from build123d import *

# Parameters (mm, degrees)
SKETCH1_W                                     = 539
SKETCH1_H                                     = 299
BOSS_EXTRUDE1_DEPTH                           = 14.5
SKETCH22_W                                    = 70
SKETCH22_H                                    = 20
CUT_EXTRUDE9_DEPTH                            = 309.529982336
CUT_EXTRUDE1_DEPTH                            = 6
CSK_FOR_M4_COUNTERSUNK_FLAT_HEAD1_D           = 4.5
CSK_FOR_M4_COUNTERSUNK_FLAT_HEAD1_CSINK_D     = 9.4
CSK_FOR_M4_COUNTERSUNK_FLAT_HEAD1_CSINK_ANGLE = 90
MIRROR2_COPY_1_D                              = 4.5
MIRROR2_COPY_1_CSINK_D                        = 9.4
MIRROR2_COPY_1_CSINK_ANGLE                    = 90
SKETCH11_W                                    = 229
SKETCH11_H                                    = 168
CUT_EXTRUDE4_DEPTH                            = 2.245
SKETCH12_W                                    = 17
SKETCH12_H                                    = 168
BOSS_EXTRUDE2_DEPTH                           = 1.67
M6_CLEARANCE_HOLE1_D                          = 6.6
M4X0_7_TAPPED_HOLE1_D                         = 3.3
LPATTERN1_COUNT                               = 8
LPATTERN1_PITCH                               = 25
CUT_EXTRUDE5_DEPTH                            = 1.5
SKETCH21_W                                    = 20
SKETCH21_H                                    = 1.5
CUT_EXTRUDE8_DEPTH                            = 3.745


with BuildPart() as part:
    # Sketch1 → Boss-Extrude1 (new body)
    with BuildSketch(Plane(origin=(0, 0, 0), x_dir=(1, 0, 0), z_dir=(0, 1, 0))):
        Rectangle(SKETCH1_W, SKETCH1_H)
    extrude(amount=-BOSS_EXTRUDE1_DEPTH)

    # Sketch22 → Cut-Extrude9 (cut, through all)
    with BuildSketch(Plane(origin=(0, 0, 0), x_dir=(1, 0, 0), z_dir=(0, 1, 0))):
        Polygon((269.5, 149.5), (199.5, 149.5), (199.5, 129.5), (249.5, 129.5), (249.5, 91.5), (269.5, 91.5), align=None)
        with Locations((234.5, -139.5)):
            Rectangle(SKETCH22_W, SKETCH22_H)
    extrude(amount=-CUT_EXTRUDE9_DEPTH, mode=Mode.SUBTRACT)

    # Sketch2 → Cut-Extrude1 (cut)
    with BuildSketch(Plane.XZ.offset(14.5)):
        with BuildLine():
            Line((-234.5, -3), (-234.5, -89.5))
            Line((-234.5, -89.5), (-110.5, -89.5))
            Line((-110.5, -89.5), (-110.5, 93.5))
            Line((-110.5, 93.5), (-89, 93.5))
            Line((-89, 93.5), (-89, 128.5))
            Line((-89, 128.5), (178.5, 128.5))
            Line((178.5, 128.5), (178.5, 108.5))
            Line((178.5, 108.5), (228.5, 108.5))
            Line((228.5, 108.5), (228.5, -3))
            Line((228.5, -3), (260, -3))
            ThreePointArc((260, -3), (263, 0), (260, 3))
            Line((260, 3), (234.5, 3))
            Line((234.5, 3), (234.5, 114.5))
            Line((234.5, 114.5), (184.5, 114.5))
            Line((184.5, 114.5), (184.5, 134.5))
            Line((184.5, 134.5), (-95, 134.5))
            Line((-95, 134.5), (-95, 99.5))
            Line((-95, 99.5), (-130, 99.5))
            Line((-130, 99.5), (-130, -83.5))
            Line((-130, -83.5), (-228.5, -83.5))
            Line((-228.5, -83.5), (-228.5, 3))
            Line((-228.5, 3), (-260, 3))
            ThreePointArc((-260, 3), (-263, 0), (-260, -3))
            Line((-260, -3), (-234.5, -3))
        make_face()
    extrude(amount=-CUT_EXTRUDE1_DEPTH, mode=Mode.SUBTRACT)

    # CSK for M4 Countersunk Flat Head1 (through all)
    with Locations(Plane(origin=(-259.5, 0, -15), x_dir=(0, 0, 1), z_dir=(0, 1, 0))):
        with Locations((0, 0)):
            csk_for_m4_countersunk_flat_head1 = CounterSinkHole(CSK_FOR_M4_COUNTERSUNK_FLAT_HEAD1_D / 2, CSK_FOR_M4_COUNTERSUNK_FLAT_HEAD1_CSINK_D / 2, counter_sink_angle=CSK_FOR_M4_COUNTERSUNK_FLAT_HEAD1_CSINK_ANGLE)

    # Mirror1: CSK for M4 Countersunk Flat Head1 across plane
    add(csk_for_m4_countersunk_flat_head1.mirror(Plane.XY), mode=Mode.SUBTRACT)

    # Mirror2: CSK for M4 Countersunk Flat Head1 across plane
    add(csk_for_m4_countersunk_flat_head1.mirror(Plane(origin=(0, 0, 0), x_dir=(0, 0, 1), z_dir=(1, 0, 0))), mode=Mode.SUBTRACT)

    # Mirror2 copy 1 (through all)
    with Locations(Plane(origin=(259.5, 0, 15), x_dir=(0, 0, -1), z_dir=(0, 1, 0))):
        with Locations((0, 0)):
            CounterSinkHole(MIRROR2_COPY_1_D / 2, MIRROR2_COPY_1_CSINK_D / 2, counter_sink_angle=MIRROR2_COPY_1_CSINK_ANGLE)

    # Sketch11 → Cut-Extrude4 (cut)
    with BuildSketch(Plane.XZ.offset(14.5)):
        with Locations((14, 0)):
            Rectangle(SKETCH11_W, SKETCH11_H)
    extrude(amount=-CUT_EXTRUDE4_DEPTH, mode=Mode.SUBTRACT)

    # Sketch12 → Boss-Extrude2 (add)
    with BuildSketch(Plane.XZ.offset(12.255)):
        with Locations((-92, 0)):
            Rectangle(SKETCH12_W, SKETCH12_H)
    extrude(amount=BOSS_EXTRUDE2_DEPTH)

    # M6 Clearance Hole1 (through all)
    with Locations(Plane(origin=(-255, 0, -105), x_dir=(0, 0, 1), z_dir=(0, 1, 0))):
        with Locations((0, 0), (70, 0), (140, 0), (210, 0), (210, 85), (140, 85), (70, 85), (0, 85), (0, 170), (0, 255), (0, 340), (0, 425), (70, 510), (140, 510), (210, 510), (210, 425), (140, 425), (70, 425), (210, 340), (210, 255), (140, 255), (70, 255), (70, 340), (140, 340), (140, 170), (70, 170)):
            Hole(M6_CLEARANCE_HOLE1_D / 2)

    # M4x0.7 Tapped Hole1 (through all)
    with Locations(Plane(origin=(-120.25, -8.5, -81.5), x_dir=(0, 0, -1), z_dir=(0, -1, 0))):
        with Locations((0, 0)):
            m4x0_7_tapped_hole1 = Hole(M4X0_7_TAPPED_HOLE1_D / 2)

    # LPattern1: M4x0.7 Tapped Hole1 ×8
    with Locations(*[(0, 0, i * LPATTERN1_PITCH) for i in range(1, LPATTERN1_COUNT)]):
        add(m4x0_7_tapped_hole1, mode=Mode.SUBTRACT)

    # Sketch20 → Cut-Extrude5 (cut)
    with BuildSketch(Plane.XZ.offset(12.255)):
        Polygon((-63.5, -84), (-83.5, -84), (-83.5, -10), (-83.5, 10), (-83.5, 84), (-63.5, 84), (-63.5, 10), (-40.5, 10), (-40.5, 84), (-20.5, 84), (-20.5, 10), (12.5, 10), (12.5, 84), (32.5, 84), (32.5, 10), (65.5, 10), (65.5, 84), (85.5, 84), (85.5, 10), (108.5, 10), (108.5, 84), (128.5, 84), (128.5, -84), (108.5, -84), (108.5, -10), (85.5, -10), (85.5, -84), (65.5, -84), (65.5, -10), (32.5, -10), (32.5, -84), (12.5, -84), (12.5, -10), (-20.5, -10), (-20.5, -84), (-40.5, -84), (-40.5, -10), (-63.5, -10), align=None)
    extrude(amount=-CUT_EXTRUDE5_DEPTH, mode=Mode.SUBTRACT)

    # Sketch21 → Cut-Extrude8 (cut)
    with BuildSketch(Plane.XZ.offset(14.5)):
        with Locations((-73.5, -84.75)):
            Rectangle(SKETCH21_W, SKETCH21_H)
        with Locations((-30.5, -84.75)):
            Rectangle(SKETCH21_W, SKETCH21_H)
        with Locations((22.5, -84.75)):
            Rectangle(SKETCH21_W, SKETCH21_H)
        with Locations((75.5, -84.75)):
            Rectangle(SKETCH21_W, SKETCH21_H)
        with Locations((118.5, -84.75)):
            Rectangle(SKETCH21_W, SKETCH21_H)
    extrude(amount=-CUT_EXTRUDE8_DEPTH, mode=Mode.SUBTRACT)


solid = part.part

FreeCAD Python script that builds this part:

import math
import FreeCAD as App
import Part
import Sketcher


def add_polygon(sketch, points):
    """Adds a closed chain of lines whose ends are joined by coincident constraints."""
    first, n = sketch.GeometryCount, len(points)
    for a, b in zip(points, points[1:] + points[:1]):
        sketch.addGeometry(Part.LineSegment(App.Vector(*a, 0), App.Vector(*b, 0)), False)
    for i in range(n):
        sketch.addConstraint(Sketcher.Constraint("Coincident", first + i, 2, first + (i + 1) % n, 1))

doc = App.newDocument("Part")
body = doc.addObject("PartDesign::Body", "Body")

# Sketch on XZ plane
sketch1 = doc.addObject("Sketcher::SketchObject", "Sketch")
body.addObject(sketch1)
sketch1.AttachmentSupport = (doc.XZ_Plane, [""])
sketch1.MapMode = "FlatFace"
add_polygon(sketch1, [(-269.5, -149.5), (-269.5, 149.5), (269.5, 149.5), (269.5, -149.5)])  # lines 0-3
sketch1.addConstraint(Sketcher.Constraint("Vertical", 0))
sketch1.addConstraint(Sketcher.Constraint("Horizontal", 1))
sketch1.addConstraint(Sketcher.Constraint("Vertical", 2))
sketch1.addConstraint(Sketcher.Constraint("Horizontal", 3))
sketch1.addConstraint(Sketcher.Constraint("Symmetric", 0, 2, 2, 2, -1, 1))
sketch1.addConstraint(Sketcher.Constraint("DistanceX", 1, 1, 1, 2, 539.0))
sketch1.addConstraint(Sketcher.Constraint("DistanceY", 0, 1, 0, 2, 299.0))
pad1 = doc.addObject("PartDesign::Pad", "Pad")
body.addObject(pad1)
pad1.Profile = sketch1
pad1.Length = 14.5

# Sketch on XZ plane
sketch2 = doc.addObject("Sketcher::SketchObject", "Sketch001")
body.addObject(sketch2)
sketch2.AttachmentSupport = (doc.XZ_Plane, [""])
sketch2.MapMode = "FlatFace"
add_polygon(sketch2, [(269.5, -149.5), (199.5, -149.5), (199.5, -129.5), (249.5, -129.5), (249.5, -91.5), (269.5, -91.5)])  # lines 0-5
add_polygon(sketch2, [(199.5, 129.5), (199.5, 149.5), (269.5, 149.5), (269.5, 129.5)])  # lines 6-9
sketch2.addConstraint(Sketcher.Constraint("Horizontal", 0))
sketch2.addConstraint(Sketcher.Constraint("Vertical", 1))
sketch2.addConstraint(Sketcher.Constraint("Horizontal", 2))
sketch2.addConstraint(Sketcher.Constraint("Vertical", 3))
sketch2.addConstraint(Sketcher.Constraint("Horizontal", 4))
sketch2.addConstraint(Sketcher.Constraint("Vertical", 5))
sketch2.addConstraint(Sketcher.Constraint("Vertical", 6))
sketch2.addConstraint(Sketcher.Constraint("Horizontal", 7))
sketch2.addConstraint(Sketcher.Constraint("Vertical", 8))
sketch2.addConstraint(Sketcher.Constraint("Horizontal", 9))
sketch2.addConstraint(Sketcher.Constraint("Symmetric", 0, 2, 6, 2, -1))
sketch2.addConstraint(Sketcher.Constraint("Vertical", 5, 2, 7, 2))
sketch2.addConstraint(Sketcher.Constraint("Equal", 4, 1))
sketch2.addConstraint(Sketcher.Constraint("Equal", 1, 6))
sketch2.addConstraint(Sketcher.Constraint("DistanceX", 0, 2, 0, 1, 70.0))
sketch2.addConstraint(Sketcher.Constraint("DistanceX", 2, 1, 2, 2, 50.0))
sketch2.addConstraint(Sketcher.Constraint("DistanceY", 3, 1, 3, 2, 38.0))
sketch2.addConstraint(Sketcher.Constraint("DistanceY", 3, 2, 6, 2, 241.0))
sketch2.addConstraint(Sketcher.Constraint("DistanceX", -1, 1, 0, 2, 199.5))
pocket1 = doc.addObject("PartDesign::Pocket", "Pocket")
body.addObject(pocket1)
pocket1.Profile = sketch2
pocket1.Type = "ThroughAll"
pocket1.Reversed = True

# Sketch on XZ plane
sketch3 = doc.addObject("Sketcher::SketchObject", "Sketch002")
body.addObject(sketch3)
sketch3.AttachmentSupport = (doc.XZ_Plane, [""])
sketch3.MapMode = "FlatFace"
sketch3.AttachmentOffset = App.Placement(App.Vector(0, 0, 14.5), App.Rotation())
sketch3.addGeometry(Part.LineSegment(App.Vector(-234.5, -3, 0), App.Vector(-234.5, -89.5, 0)), False)
sketch3.addGeometry(Part.LineSegment(App.Vector(-234.5, -89.5, 0), App.Vector(-110.5, -89.5, 0)), False)
sketch3.addGeometry(Part.LineSegment(App.Vector(-110.5, -89.5, 0), App.Vector(-110.5, 93.5, 0)), False)
sketch3.addGeometry(Part.LineSegment(App.Vector(-110.5, 93.5, 0), App.Vector(-89, 93.5, 0)), False)
sketch3.addGeometry(Part.LineSegment(App.Vector(-89, 93.5, 0), App.Vector(-89, 128.5, 0)), False)
sketch3.addGeometry(Part.LineSegment(App.Vector(-89, 128.5, 0), App.Vector(178.5, 128.5, 0)), False)
sketch3.addGeometry(Part.LineSegment(App.Vector(178.5, 128.5, 0), App.Vector(178.5, 108.5, 0)), False)
sketch3.addGeometry(Part.LineSegment(App.Vector(178.5, 108.5, 0), App.Vector(228.5, 108.5, 0)), False)
sketch3.addGeometry(Part.LineSegment(App.Vector(228.5, 108.5, 0), App.Vector(228.5, -3, 0)), False)
sketch3.addGeometry(Part.LineSegment(App.Vector(228.5, -3, 0), App.Vector(260, -3, 0)), False)
sketch3.addGeometry(Part.ArcOfCircle(Part.Circle(App.Vector(260, 0, 0), App.Vector(0, 0, 1), 3), math.radians(-90), math.radians(90)), False)
sketch3.addGeometry(Part.LineSegment(App.Vector(260, 3, 0), App.Vector(234.5, 3, 0)), False)
sketch3.addGeometry(Part.LineSegment(App.Vector(234.5, 3, 0), App.Vector(234.5, 114.5, 0)), False)
sketch3.addGeometry(Part.LineSegment(App.Vector(234.5, 114.5, 0), App.Vector(184.5, 114.5, 0)), False)
sketch3.addGeometry(Part.LineSegment(App.Vector(184.5, 114.5, 0), App.Vector(184.5, 134.5, 0)), False)
sketch3.addGeometry(Part.LineSegment(App.Vector(184.5, 134.5, 0), App.Vector(-95, 134.5, 0)), False)
sketch3.addGeometry(Part.LineSegment(App.Vector(-95, 134.5, 0), App.Vector(-95, 99.5, 0)), False)
sketch3.addGeometry(Part.LineSegment(App.Vector(-95, 99.5, 0), App.Vector(-130, 99.5, 0)), False)
sketch3.addGeometry(Part.LineSegment(App.Vector(-130, 99.5, 0), App.Vector(-130, -83.5, 0)), False)
sketch3.addGeometry(Part.LineSegment(App.Vector(-130, -83.5, 0), App.Vector(-228.5, -83.5, 0)), False)
sketch3.addGeometry(Part.LineSegment(App.Vector(-228.5, -83.5, 0), App.Vector(-228.5, 3, 0)), False)
sketch3.addGeometry(Part.LineSegment(App.Vector(-228.5, 3, 0), App.Vector(-260, 3, 0)), False)
sketch3.addGeometry(Part.ArcOfCircle(Part.Circle(App.Vector(-260, 0, 0), App.Vector(0, 0, 1), 3), math.radians(90), math.radians(270)), False)
sketch3.addGeometry(Part.LineSegment(App.Vector(-260, -3, 0), App.Vector(-234.5, -3, 0)), False)
sketch3.addConstraint(Sketcher.Constraint("Coincident", 0, 2, 1, 1))
sketch3.addConstraint(Sketcher.Constraint("Coincident", 1, 2, 2, 1))
sketch3.addConstraint(Sketcher.Constraint("Coincident", 2, 2, 3, 1))
sketch3.addConstraint(Sketcher.Constraint("Coincident", 3, 2, 4, 1))
sketch3.addConstraint(Sketcher.Constraint("Coincident", 4, 2, 5, 1))
sketch3.addConstraint(Sketcher.Constraint("Coincident", 5, 2, 6, 1))
sketch3.addConstraint(Sketcher.Constraint("Coincident", 6, 2, 7, 1))
sketch3.addConstraint(Sketcher.Constraint("Coincident", 7, 2, 8, 1))
sketch3.addConstraint(Sketcher.Constraint("Coincident", 8, 2, 9, 1))
sketch3.addConstraint(Sketcher.Constraint("Tangent", 9, 2, 10, 1))
sketch3.addConstraint(Sketcher.Constraint("Tangent", 10, 2, 11, 1))
sketch3.addConstraint(Sketcher.Constraint("Coincident", 11, 2, 12, 1))
sketch3.addConstraint(Sketcher.Constraint("Coincident", 12, 2, 13, 1))
sketch3.addConstraint(Sketcher.Constraint("Coincident", 13, 2, 14, 1))
sketch3.addConstraint(Sketcher.Constraint("Coincident", 14, 2, 15, 1))
sketch3.addConstraint(Sketcher.Constraint("Coincident", 15, 2, 16, 1))
sketch3.addConstraint(Sketcher.Constraint("Coincident", 16, 2, 17, 1))
sketch3.addConstraint(Sketcher.Constraint("Coincident", 17, 2, 18, 1))
sketch3.addConstraint(Sketcher.Constraint("Coincident", 18, 2, 19, 1))
sketch3.addConstraint(Sketcher.Constraint("Coincident", 19, 2, 20, 1))
sketch3.addConstraint(Sketcher.Constraint("Coincident", 20, 2, 21, 1))
sketch3.addConstraint(Sketcher.Constraint("Tangent", 21, 2, 22, 1))
sketch3.addConstraint(Sketcher.Constraint("Tangent", 22, 2, 23, 1))
sketch3.addConstraint(Sketcher.Constraint("Coincident", 23, 2, 0, 1))
sketch3.addConstraint(Sketcher.Constraint("Vertical", 0))
sketch3.addConstraint(Sketcher.Constraint("Horizontal", 1))
sketch3.addConstraint(Sketcher.Constraint("Vertical", 2))
sketch3.addConstraint(Sketcher.Constraint("Horizontal", 3))
sketch3.addConstraint(Sketcher.Constraint("Vertical", 4))
sketch3.addConstraint(Sketcher.Constraint("Horizontal", 5))
sketch3.addConstraint(Sketcher.Constraint("Vertical", 6))
sketch3.addConstraint(Sketcher.Constraint("Horizontal", 7))
sketch3.addConstraint(Sketcher.Constraint("Vertical", 8))
sketch3.addConstraint(Sketcher.Constraint("Horizontal", 9))
sketch3.addConstraint(Sketcher.Constraint("Horizontal", 11))
sketch3.addConstraint(Sketcher.Constraint("Vertical", 12))
sketch3.addConstraint(Sketcher.Constraint("Horizontal", 13))
sketch3.addConstraint(Sketcher.Constraint("Vertical", 14))
sketch3.addConstraint(Sketcher.Constraint("Horizontal", 15))
sketch3.addConstraint(Sketcher.Constraint("Vertical", 16))
sketch3.addConstraint(Sketcher.Constraint("Horizontal", 17))
sketch3.addConstraint(Sketcher.Constraint("Vertical", 18))
sketch3.addConstraint(Sketcher.Constraint("Horizontal", 19))
sketch3.addConstraint(Sketcher.Constraint("Vertical", 20))
sketch3.addConstraint(Sketcher.Constraint("Horizontal", 21))
sketch3.addConstraint(Sketcher.Constraint("Horizontal", 23))
sketch3.addConstraint(Sketcher.Constraint("Equal", 10, 22))
sketch3.addConstraint(Sketcher.Constraint("Symmetric", 10, 3, 22, 3, -1, 1))
sketch3.addConstraint(Sketcher.Constraint("PointOnObject", 10, 3, -1))
sketch3.addConstraint(Sketcher.Constraint("Equal", 7, 13))
sketch3.addConstraint(Sketcher.Constraint("Equal", 9, 21))
sketch3.addConstraint(Sketcher.Constraint("Equal", 11, 23))
sketch3.addConstraint(Sketcher.Constraint("Equal", 17, 4))
sketch3.addConstraint(Sketcher.Constraint("Equal", 8, 12))
sketch3.addConstraint(Sketcher.Constraint("Equal", 6, 14))
sketch3.addConstraint(Sketcher.Constraint("Equal", 4, 16))
sketch3.addConstraint(Sketcher.Constraint("Equal", 2, 18))
sketch3.addConstraint(Sketcher.Constraint("Radius", 10, 3.0))
sketch3.addConstraint(Sketcher.Constraint("DistanceX", 1, 1, 1, 2, 124.0))
sketch3.addConstraint(Sketcher.Constraint("DistanceX", 7, 1, 7, 2, 50.0))
sketch3.addConstraint(Sketcher.Constraint("DistanceX", 17, 2, 17, 1, 35.0))
sketch3.addConstraint(Sketcher.Constraint("DistanceY", 2, 1, 2, 2, 183.0))
sketch3.addConstraint(Sketcher.Constraint("DistanceY", 6, 2, 6, 1, 20.0))
sketch3.addConstraint(Sketcher.Constraint("DistanceX", 3, 1, 3, 2, 21.5))
sketch3.addConstraint(Sketcher.Constraint("DistanceX", 5, 1, 5, 2, 267.5))
sketch3.addConstraint(Sketcher.Constraint("DistanceX", 9, 1, 9, 2, 31.5))
sketch3.addConstraint(Sketcher.Constraint("DistanceX", 11, 2, 11, 1, 25.5))
sketch3.addConstraint(Sketcher.Constraint("DistanceX", 15, 2, 15, 1, 279.5))
sketch3.addConstraint(Sketcher.Constraint("DistanceY", 0, 2, 0, 1, 86.5))
pocket2 = doc.addObject("PartDesign::Pocket", "Pocket001")
body.addObject(pocket2)
pocket2.Profile = sketch3
pocket2.Length = 6

# Sketch on XZ plane
sketch4 = doc.addObject("Sketcher::SketchObject", "Sketch003")
body.addObject(sketch4)
sketch4.AttachmentSupport = (doc.XZ_Plane, [""])
sketch4.MapMode = "FlatFace"
sketch4.addGeometry(Part.Circle(App.Vector(-259.5, -15, 0), App.Vector(0, 0, 1), 2.25), False)
sketch4.addConstraint(Sketcher.Constraint("Diameter", 0, 4.5))
sketch4.addConstraint(Sketcher.Constraint("DistanceY", 0, 3, -1, 1, 15.0))
sketch4.addConstraint(Sketcher.Constraint("DistanceX", 0, 3, -1, 1, 259.5))
doc.recompute()
hole = doc.addObject("PartDesign::Hole", "Hole")
body.addObject(hole)
hole.Profile = sketch4
hole.ThreadType = "None"
hole.Diameter = 4.5
hole.DepthType = "ThroughAll"
hole.HoleCutType = "Countersink"
hole.HoleCutDiameter = 9.4
hole.HoleCutCountersinkAngle = 90
hole.Reversed = True
doc.recompute()

mirrored = doc.addObject("PartDesign::Mirrored", "Mirrored")
body.addObject(mirrored)
mirrored.Originals = [hole]
mirrored.MirrorPlane = (doc.XY_Plane, [""])
body.Tip = mirrored
doc.recompute()

mirrored2 = doc.addObject("PartDesign::Mirrored", "Mirrored001")
body.addObject(mirrored2)
mirrored2.Originals = [hole]
mirrored2.MirrorPlane = (doc.YZ_Plane, [""])
body.Tip = mirrored2

# Sketch on XZ plane
sketch5 = doc.addObject("Sketcher::SketchObject", "Sketch004")
body.addObject(sketch5)
sketch5.AttachmentSupport = (doc.XZ_Plane, [""])
sketch5.MapMode = "FlatFace"
sketch5.addGeometry(Part.Circle(App.Vector(259.5, 15, 0), App.Vector(0, 0, 1), 2.25), False)
sketch5.addConstraint(Sketcher.Constraint("Diameter", 0, 4.5))
sketch5.addConstraint(Sketcher.Constraint("DistanceY", -1, 1, 0, 3, 15.0))
sketch5.addConstraint(Sketcher.Constraint("DistanceX", -1, 1, 0, 3, 259.5))
doc.recompute()
hole2 = doc.addObject("PartDesign::Hole", "Hole001")
body.addObject(hole2)
hole2.Profile = sketch5
hole2.ThreadType = "None"
hole2.Diameter = 4.5
hole2.DepthType = "ThroughAll"
hole2.HoleCutType = "Countersink"
hole2.HoleCutDiameter = 9.4
hole2.HoleCutCountersinkAngle = 90
hole2.Reversed = True

# Sketch on XZ plane
sketch6 = doc.addObject("Sketcher::SketchObject", "Sketch005")
body.addObject(sketch6)
sketch6.AttachmentSupport = (doc.XZ_Plane, [""])
sketch6.MapMode = "FlatFace"
sketch6.AttachmentOffset = App.Placement(App.Vector(0, 0, 14.5), App.Rotation())
add_polygon(sketch6, [(-100.5, 84), (-100.5, -84), (128.5, -84), (128.5, 84)])  # lines 0-3
sketch6.addConstraint(Sketcher.Constraint("Vertical", 0))
sketch6.addConstraint(Sketcher.Constraint("Horizontal", 1))
sketch6.addConstraint(Sketcher.Constraint("Vertical", 2))
sketch6.addConstraint(Sketcher.Constraint("Horizontal", 3))
sketch6.addConstraint(Sketcher.Constraint("DistanceX", 1, 1, 1, 2, 229.0))
sketch6.addConstraint(Sketcher.Constraint("DistanceY", 0, 2, 0, 1, 168.0))
sketch6.addConstraint(Sketcher.Constraint("DistanceY", 0, 2, -1, 1, 84.0))
sketch6.addConstraint(Sketcher.Constraint("DistanceX", 0, 2, -1, 1, 100.5))
pocket3 = doc.addObject("PartDesign::Pocket", "Pocket002")
body.addObject(pocket3)
pocket3.Profile = sketch6
pocket3.Length = 2.245

# Sketch on XZ plane
sketch7 = doc.addObject("Sketcher::SketchObject", "Sketch006")
body.addObject(sketch7)
sketch7.AttachmentSupport = (doc.XZ_Plane, [""])
sketch7.MapMode = "FlatFace"
sketch7.AttachmentOffset = App.Placement(App.Vector(0, 0, 12.255), App.Rotation())
add_polygon(sketch7, [(-100.5, 84), (-100.5, -84), (-83.5, -84), (-83.5, 84)])  # lines 0-3
sketch7.addConstraint(Sketcher.Constraint("Vertical", 0))
sketch7.addConstraint(Sketcher.Constraint("Horizontal", 1))
sketch7.addConstraint(Sketcher.Constraint("Vertical", 2))
sketch7.addConstraint(Sketcher.Constraint("Horizontal", 3))
sketch7.addConstraint(Sketcher.Constraint("DistanceX", 1, 1, 1, 2, 17.0))
sketch7.addConstraint(Sketcher.Constraint("DistanceY", 0, 2, 0, 1, 168.0))
sketch7.addConstraint(Sketcher.Constraint("DistanceY", 0, 2, -1, 1, 84.0))
sketch7.addConstraint(Sketcher.Constraint("DistanceX", 0, 2, -1, 1, 100.5))
pad2 = doc.addObject("PartDesign::Pad", "Pad001")
body.addObject(pad2)
pad2.Profile = sketch7
pad2.Length = 1.67

# Sketch on XZ plane
sketch8 = doc.addObject("Sketcher::SketchObject", "Sketch007")
body.addObject(sketch8)
sketch8.AttachmentSupport = (doc.XZ_Plane, [""])
sketch8.MapMode = "FlatFace"
sketch8.addGeometry(Part.Circle(App.Vector(-255, -105, 0), App.Vector(0, 0, 1), 3.3), False)
sketch8.addGeometry(Part.Circle(App.Vector(-255, -35, 0), App.Vector(0, 0, 1), 3.3), False)
sketch8.addGeometry(Part.Circle(App.Vector(-255, 35, 0), App.Vector(0, 0, 1), 3.3), False)
sketch8.addGeometry(Part.Circle(App.Vector(-255, 105, 0), App.Vector(0, 0, 1), 3.3), False)
sketch8.addGeometry(Part.Circle(App.Vector(-170, 105, 0), App.Vector(0, 0, 1), 3.3), False)
sketch8.addGeometry(Part.Circle(App.Vector(-170, 35, 0), App.Vector(0, 0, 1), 3.3), False)
sketch8.addGeometry(Part.Circle(App.Vector(-170, -35, 0), App.Vector(0, 0, 1), 3.3), False)
sketch8.addGeometry(Part.Circle(App.Vector(-170, -105, 0), App.Vector(0, 0, 1), 3.3), False)
sketch8.addGeometry(Part.Circle(App.Vector(-85, -105, 0), App.Vector(0, 0, 1), 3.3), False)
sketch8.addGeometry(Part.Circle(App.Vector(0, -105, 0), App.Vector(0, 0, 1), 3.3), False)
sketch8.addGeometry(Part.Circle(App.Vector(85, -105, 0), App.Vector(0, 0, 1), 3.3), False)
sketch8.addGeometry(Part.Circle(App.Vector(170, -105, 0), App.Vector(0, 0, 1), 3.3), False)
sketch8.addGeometry(Part.Circle(App.Vector(255, -35, 0), App.Vector(0, 0, 1), 3.3), False)
sketch8.addGeometry(Part.Circle(App.Vector(255, 35, 0), App.Vector(0, 0, 1), 3.3), False)
sketch8.addGeometry(Part.Circle(App.Vector(255, 105, 0), App.Vector(0, 0, 1), 3.3), False)
sketch8.addGeometry(Part.Circle(App.Vector(170, 105, 0), App.Vector(0, 0, 1), 3.3), False)
sketch8.addGeometry(Part.Circle(App.Vector(170, 35, 0), App.Vector(0, 0, 1), 3.3), False)
sketch8.addGeometry(Part.Circle(App.Vector(170, -35, 0), App.Vector(0, 0, 1), 3.3), False)
sketch8.addGeometry(Part.Circle(App.Vector(85, 105, 0), App.Vector(0, 0, 1), 3.3), False)
sketch8.addGeometry(Part.Circle(App.Vector(0, 105, 0), App.Vector(0, 0, 1), 3.3), False)
sketch8.addGeometry(Part.Circle(App.Vector(0, 35, 0), App.Vector(0, 0, 1), 3.3), False)
sketch8.addGeometry(Part.Circle(App.Vector(0, -35, 0), App.Vector(0, 0, 1), 3.3), False)
sketch8.addGeometry(Part.Circle(App.Vector(85, -35, 0), App.Vector(0, 0, 1), 3.3), False)
sketch8.addGeometry(Part.Circle(App.Vector(85, 35, 0), App.Vector(0, 0, 1), 3.3), False)
sketch8.addGeometry(Part.Circle(App.Vector(-85, 35, 0), App.Vector(0, 0, 1), 3.3), False)
sketch8.addGeometry(Part.Circle(App.Vector(-85, -35, 0), App.Vector(0, 0, 1), 3.3), False)
sketch8.addConstraint(Sketcher.Constraint("Equal", 0, 1))
sketch8.addConstraint(Sketcher.Constraint("Equal", 1, 2))
sketch8.addConstraint(Sketcher.Constraint("Equal", 2, 3))
sketch8.addConstraint(Sketcher.Constraint("Equal", 3, 4))
sketch8.addConstraint(Sketcher.Constraint("Equal", 4, 5))
sketch8.addConstraint(Sketcher.Constraint("Equal", 5, 6))
sketch8.addConstraint(Sketcher.Constraint("Equal", 6, 7))
sketch8.addConstraint(Sketcher.Constraint("Equal", 7, 8))
sketch8.addConstraint(Sketcher.Constraint("Equal", 8, 9))
sketch8.addConstraint(Sketcher.Constraint("Equal", 9, 10))
sketch8.addConstraint(Sketcher.Constraint("Equal", 10, 11))
sketch8.addConstraint(Sketcher.Constraint("Equal", 11, 12))
sketch8.addConstraint(Sketcher.Constraint("Equal", 12, 13))
sketch8.addConstraint(Sketcher.Constraint("Equal", 13, 14))
sketch8.addConstraint(Sketcher.Constraint("Equal", 14, 15))
sketch8.addConstraint(Sketcher.Constraint("Equal", 15, 16))
sketch8.addConstraint(Sketcher.Constraint("Equal", 16, 17))
sketch8.addConstraint(Sketcher.Constraint("Equal", 17, 18))
sketch8.addConstraint(Sketcher.Constraint("Equal", 18, 19))
sketch8.addConstraint(Sketcher.Constraint("Equal", 19, 20))
sketch8.addConstraint(Sketcher.Constraint("Equal", 20, 21))
sketch8.addConstraint(Sketcher.Constraint("Equal", 21, 22))
sketch8.addConstraint(Sketcher.Constraint("Equal", 22, 23))
sketch8.addConstraint(Sketcher.Constraint("Equal", 23, 24))
sketch8.addConstraint(Sketcher.Constraint("Equal", 24, 25))
sketch8.addConstraint(Sketcher.Constraint("Symmetric", 4, 3, 11, 3, -1, 1))
sketch8.addConstraint(Sketcher.Constraint("Symmetric", 2, 3, 12, 3, -1, 1))
sketch8.addConstraint(Sketcher.Constraint("Symmetric", 1, 3, 13, 3, -1, 1))
sketch8.addConstraint(Sketcher.Constraint("Symmetric", 0, 3, 14, 3, -1, 1))
sketch8.addConstraint(Sketcher.Constraint("Symmetric", 7, 3, 15, 3, -1, 1))
sketch8.addConstraint(Sketcher.Constraint("Symmetric", 6, 3, 16, 3, -1, 1))
sketch8.addConstraint(Sketcher.Constraint("Symmetric", 5, 3, 17, 3, -1, 1))
sketch8.addConstraint(Sketcher.Constraint("Symmetric", 8, 3, 18, 3, -1, 1))
sketch8.addConstraint(Sketcher.Constraint("Symmetric", 9, 3, 19, 3, -1, 1))
sketch8.addConstraint(Sketcher.Constraint("Symmetric", 20, 3, 21, 3, -1, 1))
sketch8.addConstraint(Sketcher.Constraint("Symmetric", 22, 3, 24, 3, -1, 1))
sketch8.addConstraint(Sketcher.Constraint("Symmetric", 23, 3, 25, 3, -1, 1))
sketch8.addConstraint(Sketcher.Constraint("Symmetric", 8, 3, 10, 3, -2))
sketch8.addConstraint(Sketcher.Constraint("Symmetric", 7, 3, 11, 3, -2))
sketch8.addConstraint(Sketcher.Constraint("Symmetric", 1, 3, 12, 3, -2))
sketch8.addConstraint(Sketcher.Constraint("Symmetric", 3, 3, 14, 3, -2))
sketch8.addConstraint(Sketcher.Constraint("Symmetric", 5, 3, 16, 3, -2))
sketch8.addConstraint(Sketcher.Constraint("Symmetric", 23, 3, 24, 3, -2))
sketch8.addConstraint(Sketcher.Constraint("PointOnObject", 9, 3, -2))
sketch8.addConstraint(Sketcher.Constraint("PointOnObject", 20, 3, -2))
sketch8.addConstraint(Sketcher.Constraint("Horizontal", 3, 3, 4, 3))
sketch8.addConstraint(Sketcher.Constraint("Horizontal", 2, 3, 5, 3))
sketch8.addConstraint(Sketcher.Constraint("Horizontal", 7, 3, 8, 3))
sketch8.addConstraint(Sketcher.Constraint("Horizontal", 8, 3, 9, 3))
sketch8.addConstraint(Sketcher.Constraint("Horizontal", 16, 3, 20, 3))
sketch8.addConstraint(Sketcher.Constraint("Horizontal", 21, 3, 22, 3))
sketch8.addConstraint(Sketcher.Constraint("Vertical", 0, 3, 1, 3))
sketch8.addConstraint(Sketcher.Constraint("Vertical", 4, 3, 5, 3))
sketch8.addConstraint(Sketcher.Constraint("Vertical", 18, 3, 22, 3))
sketch8.addConstraint(Sketcher.Constraint("Diameter", 0, 6.6))
sketch8.addConstraint(Sketcher.Constraint("DistanceX", 0, 3, -1, 1, 255.0))
sketch8.addConstraint(Sketcher.Constraint("DistanceY", 0, 3, -1, 1, 105.0))
sketch8.addConstraint(Sketcher.Constraint("DistanceY", 1, 3, -1, 1, 35.0))
sketch8.addConstraint(Sketcher.Constraint("DistanceX", 4, 3, -1, 1, 170.0))
sketch8.addConstraint(Sketcher.Constraint("DistanceX", 8, 3, -1, 1, 85.0))
doc.recompute()
hole3 = doc.addObject("PartDesign::Hole", "Hole002")
body.addObject(hole3)
hole3.Profile = sketch8
hole3.ThreadType = "None"
hole3.Diameter = 6.6
hole3.DepthType = "ThroughAll"
hole3.Reversed = True

# Sketch on XZ plane
sketch9 = doc.addObject("Sketcher::SketchObject", "Sketch008")
body.addObject(sketch9)
sketch9.AttachmentSupport = (doc.XZ_Plane, [""])
sketch9.MapMode = "FlatFace"
sketch9.AttachmentOffset = App.Placement(App.Vector(0, 0, 8.5), App.Rotation())
sketch9.addGeometry(Part.Circle(App.Vector(-120.25, -81.5, 0), App.Vector(0, 0, 1), 1.65), False)
sketch9.addConstraint(Sketcher.Constraint("Diameter", 0, 3.3))
sketch9.addConstraint(Sketcher.Constraint("DistanceY", 0, 3, -1, 1, 81.5))
sketch9.addConstraint(Sketcher.Constraint("DistanceX", 0, 3, -1, 1, 120.25))
doc.recompute()
hole4 = doc.addObject("PartDesign::Hole", "Hole003")
body.addObject(hole4)
hole4.Profile = sketch9
hole4.ThreadType = "None"
hole4.Diameter = 3.3
hole4.DepthType = "ThroughAll"
doc.recompute()

linearpattern = doc.addObject("PartDesign::LinearPattern", "LinearPattern")
body.addObject(linearpattern)
linearpattern.Originals = [hole4]
linearpattern.Direction = (doc.Z_Axis, [""])
linearpattern.Mode = "offset"
linearpattern.Offset = 25
linearpattern.Occurrences = 8
body.Tip = linearpattern

# Sketch on XZ plane
sketch10 = doc.addObject("Sketcher::SketchObject", "Sketch009")
body.addObject(sketch10)
sketch10.AttachmentSupport = (doc.XZ_Plane, [""])
sketch10.MapMode = "FlatFace"
sketch10.AttachmentOffset = App.Placement(App.Vector(0, 0, 12.255), App.Rotation())
add_polygon(sketch10, [(-83.5, -84), (-63.5, -84), (-63.5, -10), (-40.5, -10), (-40.5, -84), (-20.5, -84), (-20.5, -10), (12.5, -10), (12.5, -84), (32.5, -84), (32.5, -10), (65.5, -10), (65.5, -84), (85.5, -84), (85.5, -10), (108.5, -10), (108.5, -84), (128.5, -84), (128.5, 84), (108.5, 84), (108.5, 10), (85.5, 10), (85.5, 84), (65.5, 84), (65.5, 10), (32.5, 10), (32.5, 84), (12.5, 84), (12.5, 10), (-20.5, 10), (-20.5, 84), (-40.5, 84), (-40.5, 10), (-63.5, 10), (-63.5, 84), (-83.5, 84)])  # lines 0-35
sketch10.addConstraint(Sketcher.Constraint("Horizontal", 0))
sketch10.addConstraint(Sketcher.Constraint("Vertical", 1))
sketch10.addConstraint(Sketcher.Constraint("Horizontal", 2))
sketch10.addConstraint(Sketcher.Constraint("Vertical", 3))
sketch10.addConstraint(Sketcher.Constraint("Horizontal", 4))
sketch10.addConstraint(Sketcher.Constraint("Vertical", 5))
sketch10.addConstraint(Sketcher.Constraint("Horizontal", 6))
sketch10.addConstraint(Sketcher.Constraint("Vertical", 7))
sketch10.addConstraint(Sketcher.Constraint("Horizontal", 8))
sketch10.addConstraint(Sketcher.Constraint("Vertical", 9))
sketch10.addConstraint(Sketcher.Constraint("Horizontal", 10))
sketch10.addConstraint(Sketcher.Constraint("Vertical", 11))
sketch10.addConstraint(Sketcher.Constraint("Horizontal", 12))
sketch10.addConstraint(Sketcher.Constraint("Vertical", 13))
sketch10.addConstraint(Sketcher.Constraint("Horizontal", 14))
sketch10.addConstraint(Sketcher.Constraint("Vertical", 15))
sketch10.addConstraint(Sketcher.Constraint("Horizontal", 16))
sketch10.addConstraint(Sketcher.Constraint("Vertical", 17))
sketch10.addConstraint(Sketcher.Constraint("Horizontal", 18))
sketch10.addConstraint(Sketcher.Constraint("Vertical", 19))
sketch10.addConstraint(Sketcher.Constraint("Horizontal", 20))
sketch10.addConstraint(Sketcher.Constraint("Vertical", 21))
sketch10.addConstraint(Sketcher.Constraint("Horizontal", 22))
sketch10.addConstraint(Sketcher.Constraint("Vertical", 23))
sketch10.addConstraint(Sketcher.Constraint("Horizontal", 24))
sketch10.addConstraint(Sketcher.Constraint("Vertical", 25))
sketch10.addConstraint(Sketcher.Constraint("Horizontal", 26))
sketch10.addConstraint(Sketcher.Constraint("Vertical", 27))
sketch10.addConstraint(Sketcher.Constraint("Horizontal", 28))
sketch10.addConstraint(Sketcher.Constraint("Vertical", 29))
sketch10.addConstraint(Sketcher.Constraint("Horizontal", 30))
sketch10.addConstraint(Sketcher.Constraint("Vertical", 31))
sketch10.addConstraint(Sketcher.Constraint("Horizontal", 32))
sketch10.addConstraint(Sketcher.Constraint("Vertical", 33))
sketch10.addConstraint(Sketcher.Constraint("Horizontal", 34))
sketch10.addConstraint(Sketcher.Constraint("Vertical", 35))
sketch10.addConstraint(Sketcher.Constraint("Symmetric", 15, 2, 18, 2, -1))
sketch10.addConstraint(Sketcher.Constraint("Symmetric", 13, 2, 20, 2, -1))
sketch10.addConstraint(Sketcher.Constraint("Symmetric", 11, 2, 22, 2, -1))
sketch10.addConstraint(Sketcher.Constraint("Symmetric", 9, 2, 24, 2, -1))
sketch10.addConstraint(Sketcher.Constraint("Symmetric", 7, 2, 26, 2, -1))
sketch10.addConstraint(Sketcher.Constraint("Symmetric", 5, 2, 28, 2, -1))
sketch10.addConstraint(Sketcher.Constraint("Symmetric", 3, 2, 30, 2, -1))
sketch10.addConstraint(Sketcher.Constraint("Symmetric", 1, 2, 32, 2, -1))
sketch10.addConstraint(Sketcher.Constraint("Horizontal", 0, 2, 3, 2))
sketch10.addConstraint(Sketcher.Constraint("Horizontal", 2, 2, 5, 2))
sketch10.addConstraint(Sketcher.Constraint("Horizontal", 4, 2, 7, 2))
sketch10.addConstraint(Sketcher.Constraint("Horizontal", 6, 2, 9, 2))
sketch10.addConstraint(Sketcher.Constraint("Horizontal", 8, 2, 11, 2))
sketch10.addConstraint(Sketcher.Constraint("Horizontal", 10, 2, 13, 2))
sketch10.addConstraint(Sketcher.Constraint("Horizontal", 12, 2, 15, 2))
sketch10.addConstraint(Sketcher.Constraint("Horizontal", 30, 2, 33, 2))
sketch10.addConstraint(Sketcher.Constraint("Equal", 0, 4))
sketch10.addConstraint(Sketcher.Constraint("Equal", 4, 8))
sketch10.addConstraint(Sketcher.Constraint("Equal", 6, 10))
sketch10.addConstraint(Sketcher.Constraint("Equal", 8, 12))
sketch10.addConstraint(Sketcher.Constraint("Equal", 2, 14))
sketch10.addConstraint(Sketcher.Constraint("Equal", 12, 16))
sketch10.addConstraint(Sketcher.Constraint("DistanceX", 0, 1, 0, 2, 20.0))
sketch10.addConstraint(Sketcher.Constraint("DistanceX", 2, 1, 2, 2, 23.0))
sketch10.addConstraint(Sketcher.Constraint("DistanceX", 6, 1, 6, 2, 33.0))
sketch10.addConstraint(Sketcher.Constraint("DistanceY", 1, 1, 1, 2, 74.0))
sketch10.addConstraint(Sketcher.Constraint("DistanceY", 17, 1, 17, 2, 168.0))
sketch10.addConstraint(Sketcher.Constraint("DistanceX", 0, 2, -1, 1, 63.5))
pocket4 = doc.addObject("PartDesign::Pocket", "Pocket003")
body.addObject(pocket4)
pocket4.Profile = sketch10
pocket4.Length = 1.5

# Sketch on XZ plane
sketch11 = doc.addObject("Sketcher::SketchObject", "Sketch010")
body.addObject(sketch11)
sketch11.AttachmentSupport = (doc.XZ_Plane, [""])
sketch11.MapMode = "FlatFace"
sketch11.AttachmentOffset = App.Placement(App.Vector(0, 0, 14.5), App.Rotation())
add_polygon(sketch11, [(-83.5, -84), (-83.5, -85.5), (-63.5, -85.5), (-63.5, -84)])  # lines 0-3
add_polygon(sketch11, [(-40.5, -84), (-40.5, -85.5), (-20.5, -85.5), (-20.5, -84)])  # lines 4-7
add_polygon(sketch11, [(12.5, -84), (12.5, -85.5), (32.5, -85.5), (32.5, -84)])  # lines 8-11
add_polygon(sketch11, [(65.5, -84), (65.5, -85.5), (85.5, -85.5), (85.5, -84)])  # lines 12-15
add_polygon(sketch11, [(108.5, -84), (108.5, -85.5), (128.5, -85.5), (128.5, -84)])  # lines 16-19
sketch11.addConstraint(Sketcher.Constraint("Vertical", 0))
sketch11.addConstraint(Sketcher.Constraint("Horizontal", 1))
sketch11.addConstraint(Sketcher.Constraint("Vertical", 2))
sketch11.addConstraint(Sketcher.Constraint("Horizontal", 3))
sketch11.addConstraint(Sketcher.Constraint("Vertical", 4))
sketch11.addConstraint(Sketcher.Constraint("Horizontal", 5))
sketch11.addConstraint(Sketcher.Constraint("Vertical", 6))
sketch11.addConstraint(Sketcher.Constraint("Horizontal", 7))
sketch11.addConstraint(Sketcher.Constraint("Vertical", 8))
sketch11.addConstraint(Sketcher.Constraint("Horizontal", 9))
sketch11.addConstraint(Sketcher.Constraint("Vertical", 10))
sketch11.addConstraint(Sketcher.Constraint("Horizontal", 11))
sketch11.addConstraint(Sketcher.Constraint("Vertical", 12))
sketch11.addConstraint(Sketcher.Constraint("Horizontal", 13))
sketch11.addConstraint(Sketcher.Constraint("Vertical", 14))
sketch11.addConstraint(Sketcher.Constraint("Horizontal", 15))
sketch11.addConstraint(Sketcher.Constraint("Vertical", 16))
sketch11.addConstraint(Sketcher.Constraint("Horizontal", 17))
sketch11.addConstraint(Sketcher.Constraint("Vertical", 18))
sketch11.addConstraint(Sketcher.Constraint("Horizontal", 19))
sketch11.addConstraint(Sketcher.Constraint("Horizontal", 1, 2, 4, 2))
sketch11.addConstraint(Sketcher.Constraint("Horizontal", 3, 2, 6, 2))
sketch11.addConstraint(Sketcher.Constraint("Horizontal", 5, 2, 8, 2))
sketch11.addConstraint(Sketcher.Constraint("Horizontal", 7, 2, 10, 2))
sketch11.addConstraint(Sketcher.Constraint("Horizontal", 9, 2, 12, 2))
sketch11.addConstraint(Sketcher.Constraint("Horizontal", 11, 2, 14, 2))
sketch11.addConstraint(Sketcher.Constraint("Horizontal", 13, 2, 16, 2))
sketch11.addConstraint(Sketcher.Constraint("Horizontal", 15, 2, 18, 2))
sketch11.addConstraint(Sketcher.Constraint("Equal", 3, 5))
sketch11.addConstraint(Sketcher.Constraint("Equal", 7, 9))
sketch11.addConstraint(Sketcher.Constraint("Equal", 11, 13))
sketch11.addConstraint(Sketcher.Constraint("Equal", 15, 17))
sketch11.addConstraint(Sketcher.Constraint("DistanceX", 1, 1, 1, 2, 20.0))
sketch11.addConstraint(Sketcher.Constraint("DistanceY", 0, 2, 0, 1, 1.5))
sketch11.addConstraint(Sketcher.Constraint("DistanceY", 2, 2, -1, 1, 84.0))
sketch11.addConstraint(Sketcher.Constraint("DistanceX", 1, 2, 4, 2, 23.0))
sketch11.addConstraint(Sketcher.Constraint("DistanceX", 5, 2, 8, 2, 33.0))
sketch11.addConstraint(Sketcher.Constraint("DistanceX", 9, 2, 12, 2, 33.0))
sketch11.addConstraint(Sketcher.Constraint("DistanceX", 13, 2, 16, 2, 23.0))
sketch11.addConstraint(Sketcher.Constraint("DistanceX", 0, 2, -1, 1, 83.5))
pocket5 = doc.addObject("PartDesign::Pocket", "Pocket004")
body.addObject(pocket5)
pocket5.Profile = sketch11
pocket5.Length = 3.745

doc.recompute()
